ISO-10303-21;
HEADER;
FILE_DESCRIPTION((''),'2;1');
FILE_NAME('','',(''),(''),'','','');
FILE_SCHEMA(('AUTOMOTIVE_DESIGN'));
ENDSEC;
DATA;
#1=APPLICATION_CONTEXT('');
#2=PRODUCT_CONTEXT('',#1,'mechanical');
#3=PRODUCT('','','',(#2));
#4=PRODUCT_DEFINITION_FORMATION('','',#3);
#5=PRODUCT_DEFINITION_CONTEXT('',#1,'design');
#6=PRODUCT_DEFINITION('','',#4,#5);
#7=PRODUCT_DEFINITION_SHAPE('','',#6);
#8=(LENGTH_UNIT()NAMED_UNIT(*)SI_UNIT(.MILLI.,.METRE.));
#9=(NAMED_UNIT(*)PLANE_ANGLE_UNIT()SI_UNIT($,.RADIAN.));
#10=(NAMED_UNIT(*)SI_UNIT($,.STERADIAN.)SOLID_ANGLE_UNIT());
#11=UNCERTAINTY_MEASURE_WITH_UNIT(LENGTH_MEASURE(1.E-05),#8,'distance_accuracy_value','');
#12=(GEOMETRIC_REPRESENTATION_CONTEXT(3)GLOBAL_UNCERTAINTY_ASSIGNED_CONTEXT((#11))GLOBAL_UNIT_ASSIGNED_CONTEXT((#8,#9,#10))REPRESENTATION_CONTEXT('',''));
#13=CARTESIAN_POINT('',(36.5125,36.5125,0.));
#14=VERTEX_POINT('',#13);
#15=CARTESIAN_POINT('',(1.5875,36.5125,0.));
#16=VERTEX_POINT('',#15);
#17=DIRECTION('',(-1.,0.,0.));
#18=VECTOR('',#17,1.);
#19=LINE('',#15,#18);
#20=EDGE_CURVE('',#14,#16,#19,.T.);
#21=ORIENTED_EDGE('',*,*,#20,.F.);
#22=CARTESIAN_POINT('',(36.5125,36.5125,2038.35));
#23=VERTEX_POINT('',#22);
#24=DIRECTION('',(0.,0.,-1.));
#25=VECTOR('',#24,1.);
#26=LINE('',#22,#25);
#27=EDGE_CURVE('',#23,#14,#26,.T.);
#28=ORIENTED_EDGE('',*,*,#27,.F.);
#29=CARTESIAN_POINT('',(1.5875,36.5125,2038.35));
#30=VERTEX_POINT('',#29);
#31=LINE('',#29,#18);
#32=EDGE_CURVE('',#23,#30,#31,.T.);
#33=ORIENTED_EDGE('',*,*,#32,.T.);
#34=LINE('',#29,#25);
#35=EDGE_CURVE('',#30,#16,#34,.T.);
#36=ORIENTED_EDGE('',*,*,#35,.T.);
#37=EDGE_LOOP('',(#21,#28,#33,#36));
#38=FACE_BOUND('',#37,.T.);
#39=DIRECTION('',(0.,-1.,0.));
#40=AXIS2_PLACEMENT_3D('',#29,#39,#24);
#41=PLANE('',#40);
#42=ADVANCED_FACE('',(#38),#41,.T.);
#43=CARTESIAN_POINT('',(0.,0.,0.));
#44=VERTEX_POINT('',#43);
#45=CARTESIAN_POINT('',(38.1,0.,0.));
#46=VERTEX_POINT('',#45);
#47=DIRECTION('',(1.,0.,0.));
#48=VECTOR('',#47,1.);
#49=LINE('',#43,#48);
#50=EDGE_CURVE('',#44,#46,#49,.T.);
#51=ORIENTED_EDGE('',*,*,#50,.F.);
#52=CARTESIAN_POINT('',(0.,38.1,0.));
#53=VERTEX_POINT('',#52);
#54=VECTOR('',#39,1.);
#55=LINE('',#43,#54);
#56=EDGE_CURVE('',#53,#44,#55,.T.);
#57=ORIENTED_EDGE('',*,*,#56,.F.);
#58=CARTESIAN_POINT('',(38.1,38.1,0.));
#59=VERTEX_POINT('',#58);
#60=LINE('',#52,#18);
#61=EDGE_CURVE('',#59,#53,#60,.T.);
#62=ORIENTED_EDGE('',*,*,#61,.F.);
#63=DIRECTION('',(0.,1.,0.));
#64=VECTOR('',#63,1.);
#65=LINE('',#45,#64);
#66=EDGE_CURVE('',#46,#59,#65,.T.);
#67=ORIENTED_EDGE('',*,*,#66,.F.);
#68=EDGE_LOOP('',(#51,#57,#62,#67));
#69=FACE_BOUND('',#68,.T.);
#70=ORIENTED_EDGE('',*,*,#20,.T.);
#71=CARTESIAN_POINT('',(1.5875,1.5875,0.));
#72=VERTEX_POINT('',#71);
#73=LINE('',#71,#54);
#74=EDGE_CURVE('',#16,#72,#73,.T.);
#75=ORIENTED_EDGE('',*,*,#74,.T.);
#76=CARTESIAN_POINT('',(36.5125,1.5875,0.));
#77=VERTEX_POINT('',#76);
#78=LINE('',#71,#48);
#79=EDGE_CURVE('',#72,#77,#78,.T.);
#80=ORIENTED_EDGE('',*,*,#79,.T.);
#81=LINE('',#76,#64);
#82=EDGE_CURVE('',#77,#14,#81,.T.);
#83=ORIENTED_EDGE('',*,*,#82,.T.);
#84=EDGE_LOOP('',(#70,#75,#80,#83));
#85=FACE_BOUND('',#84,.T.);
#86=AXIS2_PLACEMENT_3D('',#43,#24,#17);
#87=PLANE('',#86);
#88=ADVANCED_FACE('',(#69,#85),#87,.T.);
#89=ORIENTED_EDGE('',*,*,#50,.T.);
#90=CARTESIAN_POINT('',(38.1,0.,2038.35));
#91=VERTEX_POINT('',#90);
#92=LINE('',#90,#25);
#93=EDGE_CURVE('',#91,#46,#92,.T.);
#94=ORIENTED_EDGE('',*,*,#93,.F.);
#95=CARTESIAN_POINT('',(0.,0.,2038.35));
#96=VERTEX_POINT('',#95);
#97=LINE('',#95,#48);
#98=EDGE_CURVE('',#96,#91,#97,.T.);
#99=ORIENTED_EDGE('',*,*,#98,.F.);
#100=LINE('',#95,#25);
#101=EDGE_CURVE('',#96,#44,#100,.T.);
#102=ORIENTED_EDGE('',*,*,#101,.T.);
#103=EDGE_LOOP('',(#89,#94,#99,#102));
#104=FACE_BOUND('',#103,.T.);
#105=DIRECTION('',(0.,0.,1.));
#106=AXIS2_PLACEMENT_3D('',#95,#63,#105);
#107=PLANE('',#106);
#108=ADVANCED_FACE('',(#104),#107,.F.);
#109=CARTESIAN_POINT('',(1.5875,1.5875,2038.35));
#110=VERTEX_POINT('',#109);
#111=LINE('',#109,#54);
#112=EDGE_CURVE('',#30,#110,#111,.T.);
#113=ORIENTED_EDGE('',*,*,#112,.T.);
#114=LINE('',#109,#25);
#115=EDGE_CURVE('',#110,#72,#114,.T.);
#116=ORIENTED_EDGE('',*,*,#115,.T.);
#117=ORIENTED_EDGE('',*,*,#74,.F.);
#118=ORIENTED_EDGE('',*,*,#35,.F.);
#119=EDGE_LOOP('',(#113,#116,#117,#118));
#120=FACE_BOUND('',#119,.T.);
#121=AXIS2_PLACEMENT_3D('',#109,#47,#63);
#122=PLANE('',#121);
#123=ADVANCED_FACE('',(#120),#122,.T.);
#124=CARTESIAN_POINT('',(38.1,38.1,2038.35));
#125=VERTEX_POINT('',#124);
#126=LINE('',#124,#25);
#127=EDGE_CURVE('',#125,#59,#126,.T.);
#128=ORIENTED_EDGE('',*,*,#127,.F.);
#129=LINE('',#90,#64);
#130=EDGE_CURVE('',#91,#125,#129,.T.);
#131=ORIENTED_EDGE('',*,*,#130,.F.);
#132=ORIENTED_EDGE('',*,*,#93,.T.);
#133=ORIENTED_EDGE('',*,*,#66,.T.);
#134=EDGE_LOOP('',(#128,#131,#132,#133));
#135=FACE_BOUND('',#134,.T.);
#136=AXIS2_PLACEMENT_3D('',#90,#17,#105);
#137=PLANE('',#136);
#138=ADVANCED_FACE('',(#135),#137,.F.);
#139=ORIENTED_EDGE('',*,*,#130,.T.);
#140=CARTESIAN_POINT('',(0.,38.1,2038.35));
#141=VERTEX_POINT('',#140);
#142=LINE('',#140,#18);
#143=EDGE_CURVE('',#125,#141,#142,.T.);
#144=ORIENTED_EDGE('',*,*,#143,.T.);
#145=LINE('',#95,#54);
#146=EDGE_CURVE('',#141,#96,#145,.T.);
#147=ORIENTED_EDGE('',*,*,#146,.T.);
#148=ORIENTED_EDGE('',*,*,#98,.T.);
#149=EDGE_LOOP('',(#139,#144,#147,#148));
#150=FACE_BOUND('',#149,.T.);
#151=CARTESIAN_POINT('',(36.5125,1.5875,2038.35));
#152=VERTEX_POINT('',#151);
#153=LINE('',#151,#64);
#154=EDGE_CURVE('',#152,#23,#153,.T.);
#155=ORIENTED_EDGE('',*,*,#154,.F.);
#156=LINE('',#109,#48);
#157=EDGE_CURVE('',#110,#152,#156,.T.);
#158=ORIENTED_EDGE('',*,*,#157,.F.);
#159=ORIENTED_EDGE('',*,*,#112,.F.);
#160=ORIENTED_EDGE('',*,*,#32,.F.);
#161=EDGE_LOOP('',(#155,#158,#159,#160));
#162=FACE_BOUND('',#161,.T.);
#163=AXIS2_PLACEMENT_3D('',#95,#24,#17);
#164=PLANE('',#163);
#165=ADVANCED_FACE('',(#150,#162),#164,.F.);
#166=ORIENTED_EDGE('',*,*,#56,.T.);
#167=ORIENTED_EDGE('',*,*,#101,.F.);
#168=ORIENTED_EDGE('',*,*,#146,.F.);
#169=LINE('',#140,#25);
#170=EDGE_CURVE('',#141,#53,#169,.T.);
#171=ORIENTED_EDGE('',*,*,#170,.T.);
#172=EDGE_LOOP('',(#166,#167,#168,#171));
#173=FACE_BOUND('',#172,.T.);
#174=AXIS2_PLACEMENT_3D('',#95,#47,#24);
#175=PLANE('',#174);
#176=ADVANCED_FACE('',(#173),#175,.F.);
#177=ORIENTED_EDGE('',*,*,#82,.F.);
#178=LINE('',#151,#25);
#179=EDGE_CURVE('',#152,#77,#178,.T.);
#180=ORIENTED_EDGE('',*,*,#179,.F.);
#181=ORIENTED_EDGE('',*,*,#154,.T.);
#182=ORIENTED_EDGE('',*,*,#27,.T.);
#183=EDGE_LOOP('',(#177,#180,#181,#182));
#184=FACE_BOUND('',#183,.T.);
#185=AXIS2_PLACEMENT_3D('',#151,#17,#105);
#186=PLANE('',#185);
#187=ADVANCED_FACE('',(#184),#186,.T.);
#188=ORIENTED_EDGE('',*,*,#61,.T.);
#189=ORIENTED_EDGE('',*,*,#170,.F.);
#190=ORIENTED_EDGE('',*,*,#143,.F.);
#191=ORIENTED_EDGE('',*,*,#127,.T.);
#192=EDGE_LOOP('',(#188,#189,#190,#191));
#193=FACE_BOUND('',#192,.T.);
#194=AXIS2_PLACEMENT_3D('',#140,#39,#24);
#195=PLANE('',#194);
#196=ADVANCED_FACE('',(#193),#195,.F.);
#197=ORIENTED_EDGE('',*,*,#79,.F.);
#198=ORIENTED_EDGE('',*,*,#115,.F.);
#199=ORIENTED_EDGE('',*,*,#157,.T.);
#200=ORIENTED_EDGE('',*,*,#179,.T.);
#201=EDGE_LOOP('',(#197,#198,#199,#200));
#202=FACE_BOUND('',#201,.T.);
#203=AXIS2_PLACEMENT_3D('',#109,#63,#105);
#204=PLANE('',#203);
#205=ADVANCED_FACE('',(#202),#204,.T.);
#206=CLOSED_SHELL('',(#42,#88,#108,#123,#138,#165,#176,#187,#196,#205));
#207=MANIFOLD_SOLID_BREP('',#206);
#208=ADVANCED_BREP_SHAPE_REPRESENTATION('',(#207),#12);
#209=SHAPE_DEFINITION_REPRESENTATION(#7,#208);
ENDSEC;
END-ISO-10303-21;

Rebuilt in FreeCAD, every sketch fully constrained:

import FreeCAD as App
import Part
import Sketcher

V = App.Vector
Q = App.Units.Quantity


def add_polygon(sketch, points):
    """Adds a closed chain of lines whose ends are joined by coincident constraints."""
    first, n = sketch.GeometryCount, len(points)
    for a, b in zip(points, points[1:] + points[:1]):
        sketch.addGeometry(Part.LineSegment(App.Vector(*a, 0), App.Vector(*b, 0)), False)
    for i in range(n):
        sketch.addConstraint(Sketcher.Constraint("Coincident", first + i, 2, first + (i + 1) % n, 1))

doc = App.newDocument("Part")
body = doc.addObject("PartDesign::Body", "Body")

sketch1 = body.newObject("Sketcher::SketchObject", "Sketch")
sketch1.AttachmentSupport = (doc.getObject("XY_Plane"), [""])
sketch1.MapMode = "FlatFace"
add_polygon(sketch1, [(0, 38.1), (0, 0), (38.1, 0), (38.1, 38.1)])
add_polygon(sketch1, [(36.5125, 1.5875), (1.5875, 1.5875), (1.5875, 36.5125), (36.5125, 36.5125)])
sketch1.addConstraint([
    Sketcher.Constraint("Vertical", 0),
    Sketcher.Constraint("Horizontal", 1),
    Sketcher.Constraint("Vertical", 2),
    Sketcher.Constraint("Horizontal", 3),
    Sketcher.Constraint("Horizontal", 4),
    Sketcher.Constraint("Vertical", 5),
    Sketcher.Constraint("Horizontal", 6),
    Sketcher.Constraint("Vertical", 7),
    Sketcher.Constraint("Coincident", 0, 2, -1, 1),
    Sketcher.Constraint("Equal", 3, 0),
    Sketcher.Constraint("Equal", 6, 5),
    Sketcher.Constraint("DistanceX", 1, 1, 1, 2, Q("1.5 in")),
    Sketcher.Constraint("DistanceX", 4, 2, 4, 1, Q("1.375 in")),
    Sketcher.Constraint("DistanceX", -1, 1, 4, 2, Q("0.0625 in")),
    Sketcher.Constraint("DistanceY", -1, 1, 4, 2, Q("0.0625 in")),
])
pad1 = body.newObject("PartDesign::Pad", "Pad")
pad1.Profile = sketch1
pad1.Length = Q("80.25 in")

doc.recompute()
